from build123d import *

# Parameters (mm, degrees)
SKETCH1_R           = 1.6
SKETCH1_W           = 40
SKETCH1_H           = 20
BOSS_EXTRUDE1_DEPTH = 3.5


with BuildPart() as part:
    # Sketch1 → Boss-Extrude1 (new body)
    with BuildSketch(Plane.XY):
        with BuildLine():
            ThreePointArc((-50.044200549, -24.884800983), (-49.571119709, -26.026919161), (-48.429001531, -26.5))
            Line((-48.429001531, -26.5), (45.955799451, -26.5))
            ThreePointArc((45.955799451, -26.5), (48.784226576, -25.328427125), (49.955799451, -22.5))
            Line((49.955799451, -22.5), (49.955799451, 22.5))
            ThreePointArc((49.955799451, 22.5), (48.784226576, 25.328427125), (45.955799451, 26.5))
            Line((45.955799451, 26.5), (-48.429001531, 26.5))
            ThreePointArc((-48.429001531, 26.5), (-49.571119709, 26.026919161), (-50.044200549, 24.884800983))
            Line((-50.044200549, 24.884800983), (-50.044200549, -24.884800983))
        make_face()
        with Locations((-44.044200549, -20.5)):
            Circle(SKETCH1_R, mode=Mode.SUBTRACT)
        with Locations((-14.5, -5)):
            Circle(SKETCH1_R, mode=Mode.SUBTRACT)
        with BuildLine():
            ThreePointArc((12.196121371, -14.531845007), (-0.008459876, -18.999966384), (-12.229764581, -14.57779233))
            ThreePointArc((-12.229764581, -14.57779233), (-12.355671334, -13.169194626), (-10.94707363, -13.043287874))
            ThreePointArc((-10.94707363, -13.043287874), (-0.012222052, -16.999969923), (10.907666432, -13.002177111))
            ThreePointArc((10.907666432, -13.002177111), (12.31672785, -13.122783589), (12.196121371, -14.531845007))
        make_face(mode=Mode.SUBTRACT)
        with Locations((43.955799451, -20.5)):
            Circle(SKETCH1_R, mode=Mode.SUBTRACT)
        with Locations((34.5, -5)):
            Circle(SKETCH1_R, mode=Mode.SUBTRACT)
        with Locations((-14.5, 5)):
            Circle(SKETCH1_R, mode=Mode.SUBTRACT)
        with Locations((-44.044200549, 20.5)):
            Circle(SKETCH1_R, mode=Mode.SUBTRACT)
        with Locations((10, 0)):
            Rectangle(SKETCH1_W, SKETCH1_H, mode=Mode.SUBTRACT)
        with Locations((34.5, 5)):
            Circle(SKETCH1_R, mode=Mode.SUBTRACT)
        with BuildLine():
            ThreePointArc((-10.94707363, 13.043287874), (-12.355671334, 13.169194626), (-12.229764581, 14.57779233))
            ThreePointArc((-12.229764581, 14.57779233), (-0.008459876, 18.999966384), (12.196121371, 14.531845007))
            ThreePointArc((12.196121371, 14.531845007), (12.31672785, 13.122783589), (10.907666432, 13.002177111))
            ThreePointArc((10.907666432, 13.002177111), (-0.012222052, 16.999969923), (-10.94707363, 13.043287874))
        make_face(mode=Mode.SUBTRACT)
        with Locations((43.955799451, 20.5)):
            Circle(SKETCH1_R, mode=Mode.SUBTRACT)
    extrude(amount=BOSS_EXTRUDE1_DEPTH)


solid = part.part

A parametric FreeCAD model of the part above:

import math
import FreeCAD as App
import Part
import Sketcher
from FreeCAD import Vector

doc = App.newDocument("Part")
params = doc.addObject("Spreadsheet::Sheet", "Params")
for row, (alias, value) in enumerate([
    ("sketch1_radius", "4 mm"),
    ("sketch1_radius2", "1 mm"),
    ("sketch1_radius3", "19 mm"),
    ("sketch1_diameter", "3.2 mm"),
    ("sketch1_width", "40 mm"),
    ("pad1_length", "3.5 mm"),
], start=1):
    params.set(f"A{row}", alias)
    params.set(f"B{row}", "=" + value)
    params.setAlias(f"B{row}", alias)

body = doc.addObject("PartDesign::Body", "Body")

# Sketch on XY plane
sketch1 = doc.addObject("Sketcher::SketchObject", "Sketch")
body.addObject(sketch1)
sketch1.AttachmentSupport = (doc.XY_Plane, [""])
sketch1.MapMode = "FlatFace"
sketch1.addGeometry([
    Part.ArcOfCircle(Part.Circle(Vector(-48.429002, -24.884801, 0), Vector(0, 0, 1), 1.615199), math.radians(-180), math.radians(-90)),  # 0
    Part.LineSegment(Vector(-48.429002, -26.5, 0), Vector(45.955799, -26.5, 0)),  # 1
    Part.ArcOfCircle(Part.Circle(Vector(45.955799, -22.5, 0), Vector(0, 0, 1), 4), math.radians(-90), math.radians(0)),  # 2
    Part.LineSegment(Vector(49.955799, -22.5, 0), Vector(49.955799, 22.5, 0)),  # 3
    Part.ArcOfCircle(Part.Circle(Vector(45.955799, 22.5, 0), Vector(0, 0, 1), 4), math.radians(0), math.radians(90)),  # 4
    Part.LineSegment(Vector(45.955799, 26.5, 0), Vector(-48.429002, 26.5, 0)),  # 5
    Part.ArcOfCircle(Part.Circle(Vector(-48.429002, 24.884801, 0), Vector(0, 0, 1), 1.615199), math.radians(90), math.radians(180)),  # 6
    Part.LineSegment(Vector(-50.044201, 24.884801, 0), Vector(-50.044201, -24.884801, 0)),  # 7
    Part.Circle(Vector(-44.044201, -20.5, 0), Vector(0, 0, 1), 1.6),  # 8
    Part.Circle(Vector(-14.5, -5, 0), Vector(0, 0, 1), 1.6),  # 9
    Part.ArcOfCircle(Part.Circle(Vector(11.551894, -13.767011, 0), Vector(0, 0, 1), 1), math.radians(-49.892222), math.radians(130.107778)),  # 10
    Part.ArcOfCircle(Part.Circle(Vector(-0.044201, 0, 0), Vector(0, 0, 1), 19), math.radians(-129.892222), math.radians(-49.892222)),  # 11
    Part.ArcOfCircle(Part.Circle(Vector(-11.588419, -13.81054, 0), Vector(0, 0, 1), 1), math.radians(50.107778), math.radians(230.107778)),  # 12
    Part.ArcOfCircle(Part.Circle(Vector(-0.044201, 0, 0), Vector(0, 0, 1), 17), math.radians(-129.892222), math.radians(-49.892222)),  # 13
    Part.Circle(Vector(43.955799, -20.5, 0), Vector(0, 0, 1), 1.6),  # 14
    Part.Circle(Vector(34.5, -5, 0), Vector(0, 0, 1), 1.6),  # 15
    Part.Circle(Vector(-14.5, 5, 0), Vector(0, 0, 1), 1.6),  # 16
    Part.Circle(Vector(-44.044201, 20.5, 0), Vector(0, 0, 1), 1.6),  # 17
    Part.LineSegment(Vector(30, -10, 0), Vector(-10, -10, 0)),  # 18
    Part.LineSegment(Vector(-10, -10, 0), Vector(-10, 10, 0)),  # 19
    Part.LineSegment(Vector(-10, 10, 0), Vector(30, 10, 0)),  # 20
    Part.LineSegment(Vector(30, 10, 0), Vector(30, -10, 0)),  # 21
    Part.Circle(Vector(34.5, 5, 0), Vector(0, 0, 1), 1.6),  # 22
    Part.ArcOfCircle(Part.Circle(Vector(-0.044201, 0, 0), Vector(0, 0, 1), 17), math.radians(49.892222), math.radians(129.892222)),  # 23
    Part.ArcOfCircle(Part.Circle(Vector(-11.588419, 13.81054, 0), Vector(0, 0, 1), 1), math.radians(129.892222), math.radians(309.892222)),  # 24
    Part.ArcOfCircle(Part.Circle(Vector(-0.044201, 0, 0), Vector(0, 0, 1), 19), math.radians(49.892222), math.radians(129.892222)),  # 25
    Part.ArcOfCircle(Part.Circle(Vector(11.551894, 13.767011, 0), Vector(0, 0, 1), 1), math.radians(-130.107778), math.radians(49.892222)),  # 26
    Part.Circle(Vector(43.955799, 20.5, 0), Vector(0, 0, 1), 1.6),  # 27
], False)
sketch1.addConstraint([
    Sketcher.Constraint("Tangent", 0, 2, 1, 1),
    Sketcher.Constraint("Tangent", 1, 2, 2, 1),
    Sketcher.Constraint("Tangent", 2, 2, 3, 1),
    Sketcher.Constraint("Tangent", 3, 2, 4, 1),
    Sketcher.Constraint("Tangent", 4, 2, 5, 1),
    Sketcher.Constraint("Tangent", 5, 2, 6, 1),
    Sketcher.Constraint("Tangent", 6, 2, 7, 1),
    Sketcher.Constraint("Tangent", 7, 2, 0, 1),
    Sketcher.Constraint("Tangent", 10, 1, 11, 2),
    Sketcher.Constraint("Tangent", 11, 1, 12, 2),
    Sketcher.Constraint("Tangent", 12, 1, 13, 1),
    Sketcher.Constraint("Tangent", 13, 2, 10, 2),
    Sketcher.Constraint("Coincident", 18, 2, 19, 1),
    Sketcher.Constraint("Coincident", 19, 2, 20, 1),
    Sketcher.Constraint("Coincident", 20, 2, 21, 1),
    Sketcher.Constraint("Coincident", 21, 2, 18, 1),
    Sketcher.Constraint("Tangent", 23, 2, 24, 2),
    Sketcher.Constraint("Tangent", 24, 1, 25, 2),
    Sketcher.Constraint("Tangent", 25, 1, 26, 2),
    Sketcher.Constraint("Tangent", 26, 1, 23, 1),
    Sketcher.Constraint("Horizontal", 1),
    Sketcher.Constraint("Vertical", 3),
    Sketcher.Constraint("Horizontal", 5),
    Sketcher.Constraint("Vertical", 7),
    Sketcher.Constraint("Horizontal", 18),
    Sketcher.Constraint("Vertical", 19),
    Sketcher.Constraint("Horizontal", 20),
    Sketcher.Constraint("Vertical", 21),
    Sketcher.Constraint("Coincident", 13, 3, 11, 3),
    Sketcher.Constraint("Coincident", 23, 3, 11, 3),
    Sketcher.Constraint("Coincident", 25, 3, 11, 3),
    Sketcher.Constraint("Equal", 2, 4),
    Sketcher.Constraint("Equal", 0, 6),
    Sketcher.Constraint("Equal", 8, 9),
    Sketcher.Constraint("Equal", 9, 14),
    Sketcher.Constraint("Equal", 14, 15),
    Sketcher.Constraint("Equal", 15, 16),
    Sketcher.Constraint("Equal", 16, 17),
    Sketcher.Constraint("Equal", 17, 22),
    Sketcher.Constraint("Equal", 13, 23),
    Sketcher.Constraint("Equal", 12, 24),
    Sketcher.Constraint("Equal", 22, 27),
    Sketcher.Constraint("Symmetric", 9, 3, 16, 3, -1),
    Sketcher.Constraint("Symmetric", 8, 3, 17, 3, -1),
    Sketcher.Constraint("Symmetric", 15, 3, 22, 3, -1),
    Sketcher.Constraint("Symmetric", 12, 3, 24, 3, -1),
    Sketcher.Constraint("Symmetric", 14, 3, 27, 3, -1),
    Sketcher.Constraint("Horizontal", 8, 3, 14, 3),
    Sketcher.Constraint("Horizontal", 9, 3, 15, 3),
    Sketcher.Constraint("Vertical", 10, 3, 26, 3),
    Sketcher.Constraint("Radius", 2, 4.0),
    Sketcher.Constraint("Radius", 10, 1.0),
    Sketcher.Constraint("Radius", 11, 19.0),
    Sketcher.Constraint("Diameter", 8, 3.2),
    Sketcher.Constraint("DistanceX", 18, 2, 18, 1, 40.0),
    Sketcher.Constraint("DistanceY", 3, 1, 3, 2, 45.0),
    Sketcher.Constraint("DistanceY", 19, 1, 19, 2, 20.0),
    Sketcher.Constraint("DistanceY", 9, 3, -1, 1, 5.0),
    Sketcher.Constraint("DistanceX", 18, 2, -1, 1, 10.0),
    Sketcher.Constraint("DistanceY", 18, 2, -1, 1, 10.0),
    Sketcher.Constraint("DistanceX", 8, 3, 2, 3, 90.0),
    Sketcher.Constraint("DistanceY", 2, 3, 8, 3, 2.0),
    Sketcher.Constraint("DistanceX", 8, 3, 11, 3, 44.0),
    Sketcher.Constraint("DistanceX", 14, 3, 2, 3, 2.0),
    Sketcher.Constraint("DistanceY", 8, 3, 17, 3, 41.0),
    Sketcher.Constraint("DistanceX", 6, 2, 17, 3, 6.0),
    Sketcher.Constraint("DistanceX", 9, 3, -1, 1, 14.5),
    Sketcher.Constraint("DistanceX", -1, 1, 15, 3, 34.5),
    Sketcher.Constraint("Radius", 0, 1.615199),
    Sketcher.Constraint("DistanceX", 0, 3, -1, 1, 48.429002),
    Sketcher.Constraint("DistanceY", 10, 3, -1, 1, 13.767011),
    Sketcher.Constraint("DistanceX", 12, 3, -1, 1, 11.588419),
])
sketch1.setExpression("Constraints[50]", "Params.sketch1_radius")
sketch1.setExpression("Constraints[51]", "Params.sketch1_radius2")
sketch1.setExpression("Constraints[52]", "Params.sketch1_radius3")
sketch1.setExpression("Constraints[53]", "Params.sketch1_diameter")
sketch1.setExpression("Constraints[54]", "Params.sketch1_width")
pad1 = doc.addObject("PartDesign::Pad", "Pad")
body.addObject(pad1)
pad1.Profile = sketch1
pad1.setExpression("Length", "Params.pad1_length")

doc.recompute()
